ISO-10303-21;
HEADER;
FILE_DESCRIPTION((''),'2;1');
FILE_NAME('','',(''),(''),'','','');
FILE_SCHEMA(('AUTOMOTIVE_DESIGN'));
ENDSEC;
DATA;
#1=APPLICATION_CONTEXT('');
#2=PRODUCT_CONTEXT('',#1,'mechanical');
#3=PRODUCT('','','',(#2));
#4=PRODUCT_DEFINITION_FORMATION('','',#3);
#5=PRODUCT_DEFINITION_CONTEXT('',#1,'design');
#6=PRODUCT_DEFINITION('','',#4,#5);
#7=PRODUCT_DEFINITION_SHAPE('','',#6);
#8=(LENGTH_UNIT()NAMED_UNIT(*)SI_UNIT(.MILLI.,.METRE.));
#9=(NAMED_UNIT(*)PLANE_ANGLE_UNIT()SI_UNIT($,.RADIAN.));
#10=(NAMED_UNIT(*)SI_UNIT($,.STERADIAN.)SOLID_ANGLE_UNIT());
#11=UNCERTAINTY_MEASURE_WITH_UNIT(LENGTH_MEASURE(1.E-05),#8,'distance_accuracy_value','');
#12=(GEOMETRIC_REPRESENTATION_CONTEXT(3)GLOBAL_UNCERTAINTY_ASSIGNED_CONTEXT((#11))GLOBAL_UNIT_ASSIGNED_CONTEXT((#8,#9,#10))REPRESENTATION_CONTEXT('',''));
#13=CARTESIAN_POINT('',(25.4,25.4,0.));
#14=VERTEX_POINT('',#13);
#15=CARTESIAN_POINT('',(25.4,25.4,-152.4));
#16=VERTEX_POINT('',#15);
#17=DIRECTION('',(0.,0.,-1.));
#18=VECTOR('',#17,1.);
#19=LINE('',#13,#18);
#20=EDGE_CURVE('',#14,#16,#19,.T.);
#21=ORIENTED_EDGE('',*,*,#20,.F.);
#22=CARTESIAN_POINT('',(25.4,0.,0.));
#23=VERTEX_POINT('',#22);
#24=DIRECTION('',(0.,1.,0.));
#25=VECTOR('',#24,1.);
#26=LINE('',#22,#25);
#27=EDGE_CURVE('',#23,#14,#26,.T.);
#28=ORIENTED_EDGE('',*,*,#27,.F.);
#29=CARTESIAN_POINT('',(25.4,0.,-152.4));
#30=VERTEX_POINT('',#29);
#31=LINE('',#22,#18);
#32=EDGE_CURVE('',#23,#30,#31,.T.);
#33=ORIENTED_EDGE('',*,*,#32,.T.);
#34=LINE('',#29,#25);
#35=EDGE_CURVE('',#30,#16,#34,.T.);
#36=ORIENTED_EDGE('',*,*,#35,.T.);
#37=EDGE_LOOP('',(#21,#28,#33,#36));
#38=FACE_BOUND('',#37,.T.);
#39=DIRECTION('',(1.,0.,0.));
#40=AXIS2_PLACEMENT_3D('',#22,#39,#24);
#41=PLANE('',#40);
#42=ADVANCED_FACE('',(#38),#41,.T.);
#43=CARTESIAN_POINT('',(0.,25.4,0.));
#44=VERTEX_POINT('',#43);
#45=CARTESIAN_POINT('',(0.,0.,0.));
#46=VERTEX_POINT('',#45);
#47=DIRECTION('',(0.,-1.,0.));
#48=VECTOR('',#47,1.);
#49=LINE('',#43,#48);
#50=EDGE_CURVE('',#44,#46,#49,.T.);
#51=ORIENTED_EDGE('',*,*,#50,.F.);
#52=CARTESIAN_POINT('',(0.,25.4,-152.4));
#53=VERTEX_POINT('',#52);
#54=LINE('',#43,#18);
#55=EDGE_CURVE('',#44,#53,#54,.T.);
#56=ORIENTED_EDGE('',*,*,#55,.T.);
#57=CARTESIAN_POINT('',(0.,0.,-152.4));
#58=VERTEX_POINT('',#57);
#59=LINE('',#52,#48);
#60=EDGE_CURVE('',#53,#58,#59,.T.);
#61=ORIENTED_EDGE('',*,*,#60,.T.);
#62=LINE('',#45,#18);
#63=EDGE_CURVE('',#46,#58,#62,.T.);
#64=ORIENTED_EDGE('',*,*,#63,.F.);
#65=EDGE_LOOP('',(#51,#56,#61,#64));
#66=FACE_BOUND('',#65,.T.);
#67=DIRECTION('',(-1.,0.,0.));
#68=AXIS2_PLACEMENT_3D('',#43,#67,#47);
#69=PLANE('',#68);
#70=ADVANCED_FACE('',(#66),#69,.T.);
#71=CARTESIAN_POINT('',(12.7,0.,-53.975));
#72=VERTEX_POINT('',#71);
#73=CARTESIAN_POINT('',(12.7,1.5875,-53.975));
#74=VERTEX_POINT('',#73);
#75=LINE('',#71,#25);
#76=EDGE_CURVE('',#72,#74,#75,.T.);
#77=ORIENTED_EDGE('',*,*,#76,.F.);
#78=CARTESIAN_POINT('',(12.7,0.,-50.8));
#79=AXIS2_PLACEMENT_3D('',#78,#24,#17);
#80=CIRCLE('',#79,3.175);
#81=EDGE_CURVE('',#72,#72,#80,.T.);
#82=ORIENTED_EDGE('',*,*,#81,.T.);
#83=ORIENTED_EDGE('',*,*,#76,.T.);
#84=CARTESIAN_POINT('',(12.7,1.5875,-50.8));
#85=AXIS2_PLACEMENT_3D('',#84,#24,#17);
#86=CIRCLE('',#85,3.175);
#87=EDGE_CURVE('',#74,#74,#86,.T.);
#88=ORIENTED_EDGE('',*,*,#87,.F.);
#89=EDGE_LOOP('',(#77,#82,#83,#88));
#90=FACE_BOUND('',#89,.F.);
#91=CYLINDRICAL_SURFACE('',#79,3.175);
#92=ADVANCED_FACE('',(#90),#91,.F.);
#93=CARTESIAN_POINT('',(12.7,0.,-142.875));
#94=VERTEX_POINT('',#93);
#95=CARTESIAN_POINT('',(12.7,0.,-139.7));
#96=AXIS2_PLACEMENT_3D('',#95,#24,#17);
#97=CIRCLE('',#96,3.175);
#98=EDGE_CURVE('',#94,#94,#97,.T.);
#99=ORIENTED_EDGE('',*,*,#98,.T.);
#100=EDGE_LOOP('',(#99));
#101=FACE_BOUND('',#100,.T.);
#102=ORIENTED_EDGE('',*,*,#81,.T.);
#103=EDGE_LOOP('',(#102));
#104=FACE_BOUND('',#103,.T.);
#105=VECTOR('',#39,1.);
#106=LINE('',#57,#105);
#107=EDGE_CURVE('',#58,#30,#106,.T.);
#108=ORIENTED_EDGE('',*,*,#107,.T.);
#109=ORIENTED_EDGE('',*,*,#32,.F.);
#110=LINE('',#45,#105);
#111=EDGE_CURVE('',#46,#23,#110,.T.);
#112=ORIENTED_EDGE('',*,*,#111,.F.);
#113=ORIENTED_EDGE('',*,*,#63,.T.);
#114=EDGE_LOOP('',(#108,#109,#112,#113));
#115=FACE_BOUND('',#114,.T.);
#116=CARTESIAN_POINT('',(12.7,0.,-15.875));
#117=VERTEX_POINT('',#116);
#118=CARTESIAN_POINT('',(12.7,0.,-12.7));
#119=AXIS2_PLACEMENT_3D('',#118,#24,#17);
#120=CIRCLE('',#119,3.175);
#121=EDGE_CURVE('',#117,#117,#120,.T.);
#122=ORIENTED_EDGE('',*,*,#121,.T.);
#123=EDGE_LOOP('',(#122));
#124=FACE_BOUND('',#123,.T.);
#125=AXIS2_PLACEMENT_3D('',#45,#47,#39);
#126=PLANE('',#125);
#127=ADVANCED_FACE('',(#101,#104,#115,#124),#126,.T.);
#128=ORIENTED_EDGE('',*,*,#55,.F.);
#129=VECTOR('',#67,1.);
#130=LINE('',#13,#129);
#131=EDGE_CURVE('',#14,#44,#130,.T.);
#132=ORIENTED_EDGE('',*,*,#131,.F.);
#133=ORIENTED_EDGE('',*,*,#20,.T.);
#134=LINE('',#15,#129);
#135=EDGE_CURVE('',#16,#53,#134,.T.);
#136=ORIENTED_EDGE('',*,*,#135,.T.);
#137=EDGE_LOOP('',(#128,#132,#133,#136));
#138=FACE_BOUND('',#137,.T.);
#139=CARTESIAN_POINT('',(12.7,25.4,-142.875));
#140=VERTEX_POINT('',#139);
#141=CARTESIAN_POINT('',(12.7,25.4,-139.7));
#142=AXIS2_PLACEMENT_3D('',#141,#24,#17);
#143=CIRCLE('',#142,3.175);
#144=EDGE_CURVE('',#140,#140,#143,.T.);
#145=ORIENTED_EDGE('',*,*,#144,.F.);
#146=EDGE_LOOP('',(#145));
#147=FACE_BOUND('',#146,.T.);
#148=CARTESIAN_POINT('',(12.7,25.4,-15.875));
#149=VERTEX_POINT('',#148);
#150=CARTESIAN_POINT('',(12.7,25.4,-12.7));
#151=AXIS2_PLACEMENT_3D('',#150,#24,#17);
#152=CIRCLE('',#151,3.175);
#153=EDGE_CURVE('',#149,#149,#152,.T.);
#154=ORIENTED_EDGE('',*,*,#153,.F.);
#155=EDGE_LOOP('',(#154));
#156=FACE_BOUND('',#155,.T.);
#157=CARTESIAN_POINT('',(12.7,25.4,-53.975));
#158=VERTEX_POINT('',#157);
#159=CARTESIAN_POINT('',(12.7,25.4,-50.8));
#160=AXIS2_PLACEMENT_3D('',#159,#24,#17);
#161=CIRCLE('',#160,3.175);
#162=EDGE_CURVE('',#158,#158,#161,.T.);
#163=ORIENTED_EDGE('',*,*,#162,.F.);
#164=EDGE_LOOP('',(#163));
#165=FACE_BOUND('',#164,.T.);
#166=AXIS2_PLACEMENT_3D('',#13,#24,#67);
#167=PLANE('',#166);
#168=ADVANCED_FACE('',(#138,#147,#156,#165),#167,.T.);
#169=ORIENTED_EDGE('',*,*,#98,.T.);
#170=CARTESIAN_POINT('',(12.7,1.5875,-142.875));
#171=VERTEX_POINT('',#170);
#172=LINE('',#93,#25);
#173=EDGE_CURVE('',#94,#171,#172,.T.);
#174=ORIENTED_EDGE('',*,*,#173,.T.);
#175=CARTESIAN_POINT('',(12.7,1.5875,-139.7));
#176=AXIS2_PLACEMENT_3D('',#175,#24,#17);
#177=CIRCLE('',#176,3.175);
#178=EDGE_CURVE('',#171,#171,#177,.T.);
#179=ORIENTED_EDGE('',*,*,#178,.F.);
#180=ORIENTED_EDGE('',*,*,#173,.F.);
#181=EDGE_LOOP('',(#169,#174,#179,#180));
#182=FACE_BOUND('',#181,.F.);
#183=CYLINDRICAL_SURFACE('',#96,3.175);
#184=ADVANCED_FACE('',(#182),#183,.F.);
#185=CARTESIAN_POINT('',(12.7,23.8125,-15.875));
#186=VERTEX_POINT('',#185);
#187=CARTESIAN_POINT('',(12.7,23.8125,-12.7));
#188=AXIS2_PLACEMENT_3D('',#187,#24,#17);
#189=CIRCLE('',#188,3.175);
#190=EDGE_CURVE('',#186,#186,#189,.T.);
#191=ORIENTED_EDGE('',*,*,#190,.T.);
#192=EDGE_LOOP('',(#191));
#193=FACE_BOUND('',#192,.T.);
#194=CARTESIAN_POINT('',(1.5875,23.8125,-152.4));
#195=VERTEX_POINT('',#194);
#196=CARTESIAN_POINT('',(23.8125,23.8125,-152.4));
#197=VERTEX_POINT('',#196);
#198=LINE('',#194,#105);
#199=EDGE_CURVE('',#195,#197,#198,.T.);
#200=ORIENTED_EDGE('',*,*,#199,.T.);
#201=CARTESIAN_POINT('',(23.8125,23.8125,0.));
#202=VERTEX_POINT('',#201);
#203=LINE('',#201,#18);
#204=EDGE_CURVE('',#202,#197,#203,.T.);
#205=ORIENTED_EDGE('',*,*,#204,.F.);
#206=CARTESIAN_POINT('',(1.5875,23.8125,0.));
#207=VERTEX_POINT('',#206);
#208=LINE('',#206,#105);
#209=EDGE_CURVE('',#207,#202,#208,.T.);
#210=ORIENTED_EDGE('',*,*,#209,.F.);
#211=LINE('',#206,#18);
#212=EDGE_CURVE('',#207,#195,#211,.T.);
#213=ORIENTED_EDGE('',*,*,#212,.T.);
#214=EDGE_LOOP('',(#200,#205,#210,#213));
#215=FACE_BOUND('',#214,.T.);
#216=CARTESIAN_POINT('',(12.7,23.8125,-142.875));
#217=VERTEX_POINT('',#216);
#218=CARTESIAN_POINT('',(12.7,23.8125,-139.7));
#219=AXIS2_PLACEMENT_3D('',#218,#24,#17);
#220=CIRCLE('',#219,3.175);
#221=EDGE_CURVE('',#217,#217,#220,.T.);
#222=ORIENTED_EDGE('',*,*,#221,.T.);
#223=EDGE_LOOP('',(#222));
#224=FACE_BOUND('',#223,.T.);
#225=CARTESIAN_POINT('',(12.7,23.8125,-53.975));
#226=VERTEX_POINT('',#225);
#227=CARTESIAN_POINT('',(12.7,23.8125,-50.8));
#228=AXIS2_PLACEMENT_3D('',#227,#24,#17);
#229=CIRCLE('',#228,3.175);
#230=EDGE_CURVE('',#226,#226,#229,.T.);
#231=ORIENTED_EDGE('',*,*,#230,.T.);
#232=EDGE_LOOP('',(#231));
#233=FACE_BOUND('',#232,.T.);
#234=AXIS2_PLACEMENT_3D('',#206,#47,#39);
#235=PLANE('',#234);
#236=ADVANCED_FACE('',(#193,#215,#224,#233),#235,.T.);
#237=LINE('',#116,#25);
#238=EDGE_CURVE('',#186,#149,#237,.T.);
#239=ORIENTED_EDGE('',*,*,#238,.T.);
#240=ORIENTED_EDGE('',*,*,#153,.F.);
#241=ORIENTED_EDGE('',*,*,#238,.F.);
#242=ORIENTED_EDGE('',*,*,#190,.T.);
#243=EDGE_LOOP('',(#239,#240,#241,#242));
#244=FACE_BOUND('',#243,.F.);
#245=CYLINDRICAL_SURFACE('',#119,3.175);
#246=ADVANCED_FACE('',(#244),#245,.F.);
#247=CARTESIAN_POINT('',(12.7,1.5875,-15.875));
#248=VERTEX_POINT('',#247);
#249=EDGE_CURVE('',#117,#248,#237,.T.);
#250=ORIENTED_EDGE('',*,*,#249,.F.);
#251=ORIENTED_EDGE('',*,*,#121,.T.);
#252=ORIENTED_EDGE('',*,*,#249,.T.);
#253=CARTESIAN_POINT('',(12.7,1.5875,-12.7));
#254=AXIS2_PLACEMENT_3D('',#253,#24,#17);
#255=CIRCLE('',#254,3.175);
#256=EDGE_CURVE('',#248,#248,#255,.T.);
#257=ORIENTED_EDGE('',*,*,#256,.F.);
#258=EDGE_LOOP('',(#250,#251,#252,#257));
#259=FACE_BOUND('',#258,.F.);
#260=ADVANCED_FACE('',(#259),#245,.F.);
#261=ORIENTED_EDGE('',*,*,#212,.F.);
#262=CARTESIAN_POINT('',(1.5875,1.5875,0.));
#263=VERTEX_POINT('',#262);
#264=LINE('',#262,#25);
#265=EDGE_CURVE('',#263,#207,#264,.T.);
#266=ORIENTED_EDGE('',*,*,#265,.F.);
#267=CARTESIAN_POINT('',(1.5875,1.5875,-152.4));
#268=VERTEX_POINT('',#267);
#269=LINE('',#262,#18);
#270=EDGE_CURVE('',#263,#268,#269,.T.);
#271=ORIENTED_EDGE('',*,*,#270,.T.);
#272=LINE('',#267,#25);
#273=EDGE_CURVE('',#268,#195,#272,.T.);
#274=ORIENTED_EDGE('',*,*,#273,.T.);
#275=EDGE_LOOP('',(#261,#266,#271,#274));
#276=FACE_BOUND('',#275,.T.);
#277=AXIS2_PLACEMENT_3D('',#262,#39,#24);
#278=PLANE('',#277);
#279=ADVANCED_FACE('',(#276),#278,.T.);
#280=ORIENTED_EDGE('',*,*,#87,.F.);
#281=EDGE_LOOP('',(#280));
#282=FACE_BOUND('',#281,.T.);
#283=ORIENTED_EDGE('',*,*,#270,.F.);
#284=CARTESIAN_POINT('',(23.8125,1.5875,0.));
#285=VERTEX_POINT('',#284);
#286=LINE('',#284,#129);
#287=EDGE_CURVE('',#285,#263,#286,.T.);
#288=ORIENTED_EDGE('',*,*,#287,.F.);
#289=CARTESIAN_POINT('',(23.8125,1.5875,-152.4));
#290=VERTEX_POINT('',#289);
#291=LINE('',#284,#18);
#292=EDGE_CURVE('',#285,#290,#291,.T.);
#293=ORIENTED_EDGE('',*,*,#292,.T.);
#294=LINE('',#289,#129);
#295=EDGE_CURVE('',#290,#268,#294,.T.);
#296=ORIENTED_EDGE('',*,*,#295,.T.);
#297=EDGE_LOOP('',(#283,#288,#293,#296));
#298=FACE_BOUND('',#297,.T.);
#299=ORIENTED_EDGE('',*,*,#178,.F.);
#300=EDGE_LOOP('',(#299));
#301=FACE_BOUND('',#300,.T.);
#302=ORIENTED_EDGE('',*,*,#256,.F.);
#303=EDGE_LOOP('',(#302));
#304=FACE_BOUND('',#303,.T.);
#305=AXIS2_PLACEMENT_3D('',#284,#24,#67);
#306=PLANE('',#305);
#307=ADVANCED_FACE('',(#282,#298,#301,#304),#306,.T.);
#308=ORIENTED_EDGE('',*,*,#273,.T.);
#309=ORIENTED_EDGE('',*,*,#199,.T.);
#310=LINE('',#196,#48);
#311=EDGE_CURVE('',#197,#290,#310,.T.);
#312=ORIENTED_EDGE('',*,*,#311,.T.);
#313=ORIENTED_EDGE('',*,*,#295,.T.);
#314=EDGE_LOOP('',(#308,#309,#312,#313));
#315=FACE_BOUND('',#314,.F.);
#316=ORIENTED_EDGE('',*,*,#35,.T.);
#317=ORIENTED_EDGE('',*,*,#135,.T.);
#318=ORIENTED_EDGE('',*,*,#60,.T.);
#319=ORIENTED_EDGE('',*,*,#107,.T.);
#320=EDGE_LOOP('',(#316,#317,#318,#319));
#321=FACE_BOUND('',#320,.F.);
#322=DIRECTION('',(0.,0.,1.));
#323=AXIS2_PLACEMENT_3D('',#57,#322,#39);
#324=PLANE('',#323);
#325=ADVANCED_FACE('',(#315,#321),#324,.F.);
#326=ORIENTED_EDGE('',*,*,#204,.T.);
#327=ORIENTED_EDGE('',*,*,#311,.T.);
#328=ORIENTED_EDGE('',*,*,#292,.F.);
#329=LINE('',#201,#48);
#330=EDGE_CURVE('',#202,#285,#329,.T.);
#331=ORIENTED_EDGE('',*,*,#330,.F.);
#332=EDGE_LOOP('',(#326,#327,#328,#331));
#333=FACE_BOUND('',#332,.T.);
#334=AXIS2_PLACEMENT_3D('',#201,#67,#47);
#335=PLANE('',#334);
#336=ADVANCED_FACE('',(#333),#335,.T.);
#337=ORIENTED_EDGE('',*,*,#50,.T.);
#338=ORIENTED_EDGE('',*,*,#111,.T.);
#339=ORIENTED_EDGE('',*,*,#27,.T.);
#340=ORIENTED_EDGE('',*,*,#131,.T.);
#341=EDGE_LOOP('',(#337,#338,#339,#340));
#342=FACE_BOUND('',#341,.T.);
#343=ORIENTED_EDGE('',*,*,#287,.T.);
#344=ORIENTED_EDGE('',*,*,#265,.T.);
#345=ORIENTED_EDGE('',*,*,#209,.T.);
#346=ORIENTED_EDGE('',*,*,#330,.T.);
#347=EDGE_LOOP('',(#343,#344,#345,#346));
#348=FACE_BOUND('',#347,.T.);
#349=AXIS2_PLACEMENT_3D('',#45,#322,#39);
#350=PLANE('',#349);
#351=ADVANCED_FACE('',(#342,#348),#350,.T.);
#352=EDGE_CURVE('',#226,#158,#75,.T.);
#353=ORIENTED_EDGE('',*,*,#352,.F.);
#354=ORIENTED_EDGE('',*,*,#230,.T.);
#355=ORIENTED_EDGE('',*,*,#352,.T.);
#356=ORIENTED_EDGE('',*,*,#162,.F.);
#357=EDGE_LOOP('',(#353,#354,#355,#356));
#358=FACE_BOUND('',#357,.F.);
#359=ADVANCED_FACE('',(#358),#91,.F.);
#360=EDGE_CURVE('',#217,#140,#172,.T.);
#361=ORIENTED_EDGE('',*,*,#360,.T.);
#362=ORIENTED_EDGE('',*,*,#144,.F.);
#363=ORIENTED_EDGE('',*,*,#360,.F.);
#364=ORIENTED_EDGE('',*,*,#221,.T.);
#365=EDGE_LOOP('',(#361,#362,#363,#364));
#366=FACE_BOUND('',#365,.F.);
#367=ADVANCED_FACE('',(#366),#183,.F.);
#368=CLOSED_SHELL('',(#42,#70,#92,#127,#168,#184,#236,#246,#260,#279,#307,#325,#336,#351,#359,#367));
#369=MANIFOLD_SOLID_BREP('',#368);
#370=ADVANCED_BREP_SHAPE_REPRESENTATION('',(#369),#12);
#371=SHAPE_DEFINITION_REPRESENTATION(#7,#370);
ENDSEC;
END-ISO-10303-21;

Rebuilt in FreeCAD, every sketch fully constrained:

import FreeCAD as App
import Part
import Sketcher
from FreeCAD import Vector
Q = App.Units.Quantity


def add_polygon(sketch, points):
    """Adds a closed chain of lines whose ends are joined by coincident constraints."""
    first, n = sketch.GeometryCount, len(points)
    for a, b in zip(points, points[1:] + points[:1]):
        sketch.addGeometry(Part.LineSegment(App.Vector(*a, 0), App.Vector(*b, 0)), False)
    for i in range(n):
        sketch.addConstraint(Sketcher.Constraint("Coincident", first + i, 2, first + (i + 1) % n, 1))

doc = App.newDocument("Part")
body = doc.addObject("PartDesign::Body", "Body")

# Sketch on XY plane
sketch1 = body.newObject("Sketcher::SketchObject", "Sketch")
sketch1.AttachmentSupport = (doc.getObject("XY_Plane"), [""])
sketch1.MapMode = "FlatFace"
add_polygon(sketch1, [(0, 25), (0, 0), (25, 0), (25, 25)])  # lines 0-3
add_polygon(sketch1, [(2, 2), (2, 24), (24, 24), (24, 2)])  # lines 4-7
sketch1.addConstraint([
    Sketcher.Constraint("Vertical", 0),
    Sketcher.Constraint("Horizontal", 1),
    Sketcher.Constraint("Vertical", 2),
    Sketcher.Constraint("Horizontal", 3),
    Sketcher.Constraint("Vertical", 4),
    Sketcher.Constraint("Horizontal", 5),
    Sketcher.Constraint("Vertical", 6),
    Sketcher.Constraint("Horizontal", 7),
    Sketcher.Constraint("Coincident", 0, 2, -1, 1),
    Sketcher.Constraint("Equal", 3, 0),
    Sketcher.Constraint("Equal", 7, 4),
    Sketcher.Constraint("DistanceX", 1, 1, 1, 2, Q("1 in")),
    Sketcher.Constraint("DistanceX", -1, 1, 4, 2, Q("0.0625 in")),
    Sketcher.Constraint("DistanceY", -1, 1, 6, 2, Q("0.0625 in")),
    Sketcher.Constraint("DistanceY", 4, 2, 3, 2, Q("0.0625 in")),
])
pad1 = body.newObject("PartDesign::Pad", "Pad")
pad1.Profile = sketch1
pad1.Length = Q("6 in")
pad1.Reversed = True

# Sketch on XZ plane
sketch2 = body.newObject("Sketcher::SketchObject", "Sketch001")
sketch2.AttachmentSupport = (doc.getObject("XZ_Plane"), [""])
sketch2.MapMode = "FlatFace"
sketch2.addGeometry([
    Part.Circle(Vector(12.7, -12.7, 0), Vector(0, 0, 1), 3.2),
    Part.Circle(Vector(12.7, -139.7, 0), Vector(0, 0, 1), 3.2),
    Part.Circle(Vector(12.7, -50.8, 0), Vector(0, 0, 1), 3.2),
], False)
sketch2.addConstraint([
    Sketcher.Constraint("Equal", 0, 1),
    Sketcher.Constraint("Equal", 1, 2),
    Sketcher.Constraint("Vertical", 0, 3, 1, 3),
    Sketcher.Constraint("Vertical", 1, 3, 2, 3),
    Sketcher.Constraint("Diameter", 0, Q("0.25 in")),
    Sketcher.Constraint("DistanceY", 2, 3, -1, 1, Q("2 in")),
    Sketcher.Constraint("DistanceY", 1, 3, 0, 3, Q("5 in")),
    Sketcher.Constraint("DistanceX", -1, 1, 0, 3, Q("0.5 in")),
    Sketcher.Constraint("DistanceY", 0, 3, -1, 1, Q("0.5 in")),
])
doc.recompute()
hole = body.newObject("PartDesign::Hole", "Hole")
hole.Profile = sketch2
hole.ThreadType = "None"
hole.Diameter = Q("0.25 in")
hole.DepthType = "Dimension"
hole.Depth = Q("1 in")
hole.DrillPoint = "Angled"
hole.DrillPointAngle = 118

doc.recompute()
